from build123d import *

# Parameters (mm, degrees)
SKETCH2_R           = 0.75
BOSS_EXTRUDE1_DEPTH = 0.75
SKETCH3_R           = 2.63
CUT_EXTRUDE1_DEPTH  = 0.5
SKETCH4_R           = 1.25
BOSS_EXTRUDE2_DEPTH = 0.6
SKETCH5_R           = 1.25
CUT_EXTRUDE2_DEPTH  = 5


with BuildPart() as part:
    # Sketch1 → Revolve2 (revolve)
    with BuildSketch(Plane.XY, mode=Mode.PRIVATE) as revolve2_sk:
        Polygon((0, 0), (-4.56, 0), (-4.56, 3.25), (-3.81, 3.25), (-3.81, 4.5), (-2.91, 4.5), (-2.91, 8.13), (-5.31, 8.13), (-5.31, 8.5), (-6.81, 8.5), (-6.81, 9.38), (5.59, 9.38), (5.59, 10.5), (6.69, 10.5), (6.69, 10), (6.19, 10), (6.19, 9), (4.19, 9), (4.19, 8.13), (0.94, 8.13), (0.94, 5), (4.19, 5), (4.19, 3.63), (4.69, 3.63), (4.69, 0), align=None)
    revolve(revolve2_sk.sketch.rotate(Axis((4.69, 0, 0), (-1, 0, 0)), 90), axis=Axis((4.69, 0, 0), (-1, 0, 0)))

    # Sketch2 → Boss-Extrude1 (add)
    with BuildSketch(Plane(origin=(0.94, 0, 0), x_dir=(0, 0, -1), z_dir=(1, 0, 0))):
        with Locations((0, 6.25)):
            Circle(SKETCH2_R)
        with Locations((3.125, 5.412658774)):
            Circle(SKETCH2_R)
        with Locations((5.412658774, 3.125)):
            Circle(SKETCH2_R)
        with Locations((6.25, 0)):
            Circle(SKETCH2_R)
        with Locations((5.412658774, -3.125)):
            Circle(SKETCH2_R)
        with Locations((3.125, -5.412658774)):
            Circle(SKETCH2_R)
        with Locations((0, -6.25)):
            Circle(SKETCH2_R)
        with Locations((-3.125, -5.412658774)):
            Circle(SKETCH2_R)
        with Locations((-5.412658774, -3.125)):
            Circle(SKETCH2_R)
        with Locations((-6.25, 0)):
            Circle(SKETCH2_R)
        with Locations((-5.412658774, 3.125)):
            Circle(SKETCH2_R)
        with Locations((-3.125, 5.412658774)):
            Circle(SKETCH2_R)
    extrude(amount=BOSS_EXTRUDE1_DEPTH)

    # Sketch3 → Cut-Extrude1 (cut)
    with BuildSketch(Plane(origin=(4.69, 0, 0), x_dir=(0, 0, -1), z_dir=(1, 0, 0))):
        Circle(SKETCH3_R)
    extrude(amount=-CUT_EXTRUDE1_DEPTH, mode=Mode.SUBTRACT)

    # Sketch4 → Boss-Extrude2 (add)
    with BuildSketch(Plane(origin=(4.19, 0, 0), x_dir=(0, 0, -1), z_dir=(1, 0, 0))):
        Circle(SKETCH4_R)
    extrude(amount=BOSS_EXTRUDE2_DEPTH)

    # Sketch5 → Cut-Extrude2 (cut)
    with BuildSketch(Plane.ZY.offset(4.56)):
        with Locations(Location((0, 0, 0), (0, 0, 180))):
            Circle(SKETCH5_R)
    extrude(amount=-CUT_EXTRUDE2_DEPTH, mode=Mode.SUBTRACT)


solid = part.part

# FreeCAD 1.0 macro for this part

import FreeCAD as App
import Part
import Sketcher
from FreeCAD import Vector
Q = App.Units.Quantity

doc = App.newDocument("Part")
body = doc.addObject("PartDesign::Body", "Body")

# Sketch on XY plane
sketch1 = doc.addObject("Sketcher::SketchObject", "Sketch")
body.addObject(sketch1)
sketch1.AttachmentSupport = (doc.XY_Plane, [""])
sketch1.MapMode = "FlatFace"
sketch1.addGeometry([
    Part.LineSegment(Vector(-4.56, 0, 0), Vector(4.69, 0, 0)),  # 0
    Part.LineSegment(Vector(4.69, 0, 0), Vector(4.69, 3.63, 0)),  # 1
    Part.LineSegment(Vector(4.69, 3.63, 0), Vector(4.19, 3.63, 0)),  # 2
    Part.LineSegment(Vector(4.19, 3.63, 0), Vector(4.19, 5, 0)),  # 3
    Part.LineSegment(Vector(4.19, 5, 0), Vector(0.94, 5, 0)),  # 4
    Part.LineSegment(Vector(0.94, 5, 0), Vector(0.94, 8.13, 0)),  # 5
    Part.LineSegment(Vector(0.94, 8.13, 0), Vector(4.19, 8.13, 0)),  # 6
    Part.LineSegment(Vector(4.19, 8.13, 0), Vector(4.19, 9, 0)),  # 7
    Part.LineSegment(Vector(4.19, 9, 0), Vector(6.19, 9, 0)),  # 8
    Part.LineSegment(Vector(6.19, 9, 0), Vector(6.19, 10, 0)),  # 9
    Part.LineSegment(Vector(6.19, 10, 0), Vector(6.69, 10, 0)),  # 10
    Part.LineSegment(Vector(6.69, 10, 0), Vector(6.69, 10.5, 0)),  # 11
    Part.LineSegment(Vector(6.69, 10.5, 0), Vector(5.59, 10.5, 0)),  # 12
    Part.LineSegment(Vector(5.59, 10.5, 0), Vector(5.59, 9.38, 0)),  # 13
    Part.LineSegment(Vector(5.59, 9.38, 0), Vector(-6.81, 9.38, 0)),  # 14
    Part.LineSegment(Vector(-6.81, 9.38, 0), Vector(-6.81, 8.5, 0)),  # 15
    Part.LineSegment(Vector(-6.81, 8.5, 0), Vector(-5.31, 8.5, 0)),  # 16
    Part.LineSegment(Vector(-5.31, 8.5, 0), Vector(-5.31, 8.13, 0)),  # 17
    Part.LineSegment(Vector(-5.31, 8.13, 0), Vector(-2.91, 8.13, 0)),  # 18
    Part.LineSegment(Vector(-2.91, 8.13, 0), Vector(-2.91, 4.5, 0)),  # 19
    Part.LineSegment(Vector(-2.91, 4.5, 0), Vector(-3.81, 4.5, 0)),  # 20
    Part.LineSegment(Vector(-3.81, 4.5, 0), Vector(-3.81, 3.25, 0)),  # 21
    Part.LineSegment(Vector(-3.81, 3.25, 0), Vector(-4.56, 3.25, 0)),  # 22
    Part.LineSegment(Vector(-4.56, 3.25, 0), Vector(-4.56, 0, 0)),  # 23
], False)
sketch1.addConstraint([
    Sketcher.Constraint("Coincident", 0, 2, 1, 1),
    Sketcher.Constraint("Coincident", 1, 2, 2, 1),
    Sketcher.Constraint("Coincident", 2, 2, 3, 1),
    Sketcher.Constraint("Coincident", 3, 2, 4, 1),
    Sketcher.Constraint("Coincident", 4, 2, 5, 1),
    Sketcher.Constraint("Coincident", 5, 2, 6, 1),
    Sketcher.Constraint("Coincident", 6, 2, 7, 1),
    Sketcher.Constraint("Coincident", 7, 2, 8, 1),
    Sketcher.Constraint("Coincident", 8, 2, 9, 1),
    Sketcher.Constraint("Coincident", 9, 2, 10, 1),
    Sketcher.Constraint("Coincident", 10, 2, 11, 1),
    Sketcher.Constraint("Coincident", 11, 2, 12, 1),
    Sketcher.Constraint("Coincident", 12, 2, 13, 1),
    Sketcher.Constraint("Coincident", 13, 2, 14, 1),
    Sketcher.Constraint("Coincident", 14, 2, 15, 1),
    Sketcher.Constraint("Coincident", 15, 2, 16, 1),
    Sketcher.Constraint("Coincident", 16, 2, 17, 1),
    Sketcher.Constraint("Coincident", 17, 2, 18, 1),
    Sketcher.Constraint("Coincident", 18, 2, 19, 1),
    Sketcher.Constraint("Coincident", 19, 2, 20, 1),
    Sketcher.Constraint("Coincident", 20, 2, 21, 1),
    Sketcher.Constraint("Coincident", 21, 2, 22, 1),
    Sketcher.Constraint("Coincident", 22, 2, 23, 1),
    Sketcher.Constraint("Coincident", 23, 2, 0, 1),
    Sketcher.Constraint("Horizontal", 0),
    Sketcher.Constraint("Vertical", 1),
    Sketcher.Constraint("Horizontal", 2),
    Sketcher.Constraint("Vertical", 3),
    Sketcher.Constraint("Horizontal", 4),
    Sketcher.Constraint("Vertical", 5),
    Sketcher.Constraint("Horizontal", 6),
    Sketcher.Constraint("Vertical", 7),
    Sketcher.Constraint("Horizontal", 8),
    Sketcher.Constraint("Vertical", 9),
    Sketcher.Constraint("Horizontal", 10),
    Sketcher.Constraint("Vertical", 11),
    Sketcher.Constraint("Horizontal", 12),
    Sketcher.Constraint("Vertical", 13),
    Sketcher.Constraint("Horizontal", 14),
    Sketcher.Constraint("Vertical", 15),
    Sketcher.Constraint("Horizontal", 16),
    Sketcher.Constraint("Vertical", 17),
    Sketcher.Constraint("Horizontal", 18),
    Sketcher.Constraint("Vertical", 19),
    Sketcher.Constraint("Horizontal", 20),
    Sketcher.Constraint("Vertical", 21),
    Sketcher.Constraint("Horizontal", 22),
    Sketcher.Constraint("Vertical", 23),
    Sketcher.Constraint("PointOnObject", 0, 2, -1),
    Sketcher.Constraint("Horizontal", 6, 2, 17, 2),
    Sketcher.Constraint("Vertical", 3, 2, 6, 2),
    Sketcher.Constraint("Equal", 2, 10),
    Sketcher.Constraint("Equal", 10, 11),
    Sketcher.Constraint("Equal", 1, 19),
    Sketcher.Constraint("Equal", 6, 23),
    Sketcher.Constraint("DistanceX", 8, 1, 8, 2, Q("2 mm")),
    Sketcher.Constraint("DistanceY", 9, 1, 9, 2, Q("1 mm")),
    Sketcher.Constraint("DistanceX", 2, 2, 2, 1, Q("0.5 mm")),
    Sketcher.Constraint("DistanceX", 12, 2, 12, 1, Q("1.1 mm")),
    Sketcher.Constraint("DistanceX", 14, 2, 14, 1, Q("12.4 mm")),
    Sketcher.Constraint("DistanceX", 16, 1, 16, 2, Q("1.5 mm")),
    Sketcher.Constraint("DistanceX", 18, 1, 18, 2, Q("2.4 mm")),
    Sketcher.Constraint("DistanceX", 20, 2, 20, 1, Q("0.9 mm")),
    Sketcher.Constraint("DistanceY", -1, 1, 3, 2, Q("5 mm")),
    Sketcher.Constraint("DistanceY", -1, 1, 7, 2, Q("9 mm")),
    Sketcher.Constraint("DistanceY", 19, 2, 16, 2, Q("4 mm")),
    Sketcher.Constraint("DistanceX", 0, 1, 0, 2, Q("9.25 mm")),
    Sketcher.Constraint("DistanceX", 4, 2, 4, 1, Q("3.25 mm")),
    Sketcher.Constraint("DistanceY", 1, 1, 1, 2, Q("3.63 mm")),
    Sketcher.Constraint("DistanceY", 5, 1, 5, 2, Q("3.13 mm")),
    Sketcher.Constraint("DistanceY", 13, 2, 13, 1, Q("1.12 mm")),
    Sketcher.Constraint("DistanceX", -1, 1, 0, 2, Q("4.69 mm")),
])
revolution = doc.addObject("PartDesign::Revolution", "Revolution")
body.addObject(revolution)
revolution.Profile = sketch1
revolution.ReferenceAxis = (sketch1, ["H_Axis"])
revolution.Angle = 360

# Sketch on YZ plane
sketch2 = doc.addObject("Sketcher::SketchObject", "Sketch001")
body.addObject(sketch2)
sketch2.AttachmentSupport = (doc.YZ_Plane, [""])
sketch2.MapMode = "FlatFace"
sketch2.AttachmentOffset = App.Placement(Vector(0, 0, 0.94), App.Rotation())
sketch2.addGeometry([
    Part.Circle(Vector(6.25, 0, 0), Vector(0, 0, 1), 0.75),  # 0
    Part.Circle(Vector(5.412659, -3.125, 0), Vector(0, 0, 1), 0.75),  # 1
    Part.Circle(Vector(3.125, -5.412659, 0), Vector(0, 0, 1), 0.75),  # 2
    Part.Circle(Vector(0, -6.25, 0), Vector(0, 0, 1), 0.75),  # 3
    Part.Circle(Vector(-3.125, -5.412659, 0), Vector(0, 0, 1), 0.75),  # 4
    Part.Circle(Vector(-5.412659, -3.125, 0), Vector(0, 0, 1), 0.75),  # 5
    Part.Circle(Vector(-6.25, 0, 0), Vector(0, 0, 1), 0.75),  # 6
    Part.Circle(Vector(-5.412659, 3.125, 0), Vector(0, 0, 1), 0.75),  # 7
    Part.Circle(Vector(-3.125, 5.412659, 0), Vector(0, 0, 1), 0.75),  # 8
    Part.Circle(Vector(0, 6.25, 0), Vector(0, 0, 1), 0.75),  # 9
    Part.Circle(Vector(3.125, 5.412659, 0), Vector(0, 0, 1), 0.75),  # 10
    Part.Circle(Vector(5.412659, 3.125, 0), Vector(0, 0, 1), 0.75),  # 11
], False)
sketch2.addConstraint([
    Sketcher.Constraint("Equal", 0, 1),
    Sketcher.Constraint("Equal", 1, 2),
    Sketcher.Constraint("Equal", 2, 3),
    Sketcher.Constraint("Equal", 3, 4),
    Sketcher.Constraint("Equal", 4, 5),
    Sketcher.Constraint("Equal", 5, 6),
    Sketcher.Constraint("Equal", 6, 7),
    Sketcher.Constraint("Equal", 7, 8),
    Sketcher.Constraint("Equal", 8, 9),
    Sketcher.Constraint("Equal", 9, 10),
    Sketcher.Constraint("Equal", 10, 11),
    Sketcher.Constraint("Symmetric", 0, 3, 6, 3, -1, 1),
    Sketcher.Constraint("Symmetric", 1, 3, 7, 3, -1, 1),
    Sketcher.Constraint("Symmetric", 2, 3, 8, 3, -1, 1),
    Sketcher.Constraint("Symmetric", 3, 3, 9, 3, -1, 1),
    Sketcher.Constraint("Symmetric", 4, 3, 10, 3, -1, 1),
    Sketcher.Constraint("Symmetric", 5, 3, 11, 3, -1, 1),
    Sketcher.Constraint("Symmetric", 2, 3, 4, 3, -2),
    Sketcher.Constraint("Symmetric", 1, 3, 5, 3, -2),
    Sketcher.Constraint("PointOnObject", 0, 3, -1),
    Sketcher.Constraint("PointOnObject", 3, 3, -2),
    Sketcher.Constraint("Diameter", 0, Q("1.5 mm")),
    Sketcher.Constraint("DistanceX", -1, 1, 0, 3, Q("6.25 mm")),
    Sketcher.Constraint("DistanceY", 3, 3, -1, 1, Q("6.25 mm")),
    Sketcher.Constraint("DistanceX", 4, 3, 2, 3, Q("6.25 mm")),
    Sketcher.Constraint("DistanceY", 5, 3, 7, 3, Q("6.25 mm")),
    Sketcher.Constraint("DistanceX", -1, 1, 1, 3, Q("5.412659 mm")),
    Sketcher.Constraint("DistanceY", 2, 3, -1, 1, Q("5.412659 mm")),
])
pad1 = doc.addObject("PartDesign::Pad", "Pad")
body.addObject(pad1)
pad1.Profile = sketch2
pad1.Length = 0.75

# Sketch on YZ plane
sketch3 = doc.addObject("Sketcher::SketchObject", "Sketch002")
body.addObject(sketch3)
sketch3.AttachmentSupport = (doc.YZ_Plane, [""])
sketch3.MapMode = "FlatFace"
sketch3.AttachmentOffset = App.Placement(Vector(0, 0, 4.69), App.Rotation())
sketch3.addGeometry(Part.Circle(Vector(0, 0, 0), Vector(0, 0, 1), 2.63), False)
sketch3.addConstraint([
    Sketcher.Constraint("Coincident", 0, 3, -1, 1),
    Sketcher.Constraint("Diameter", 0, Q("5.26 mm")),
])
pocket1 = doc.addObject("PartDesign::Pocket", "Pocket")
body.addObject(pocket1)
pocket1.Profile = sketch3
pocket1.Length = 0.5

# Sketch on YZ plane
sketch4 = doc.addObject("Sketcher::SketchObject", "Sketch003")
body.addObject(sketch4)
sketch4.AttachmentSupport = (doc.YZ_Plane, [""])
sketch4.MapMode = "FlatFace"
sketch4.AttachmentOffset = App.Placement(Vector(0, 0, 4.19), App.Rotation())
sketch4.addGeometry(Part.Circle(Vector(0, 0, 0), Vector(0, 0, 1), 1.25), False)
sketch4.addConstraint([
    Sketcher.Constraint("Coincident", 0, 3, -1, 1),
    Sketcher.Constraint("Diameter", 0, Q("2.5 mm")),
])
pad2 = doc.addObject("PartDesign::Pad", "Pad001")
body.addObject(pad2)
pad2.Profile = sketch4
pad2.Length = 0.6

# Sketch on YZ plane
sketch5 = doc.addObject("Sketcher::SketchObject", "Sketch004")
body.addObject(sketch5)
sketch5.AttachmentSupport = (doc.YZ_Plane, [""])
sketch5.MapMode = "FlatFace"
sketch5.AttachmentOffset = App.Placement(Vector(0, 0, -4.56), App.Rotation())
sketch5.addGeometry(Part.Circle(Vector(0, 0, 0), Vector(0, 0, 1), 1.25), False)
sketch5.addConstraint([
    Sketcher.Constraint("Coincident", 0, 3, -1, 1),
    Sketcher.Constraint("Diameter", 0, Q("2.5 mm")),
])
pocket2 = doc.addObject("PartDesign::Pocket", "Pocket001")
body.addObject(pocket2)
pocket2.Profile = sketch5
pocket2.Length = 5
pocket2.Reversed = True

doc.recompute()
